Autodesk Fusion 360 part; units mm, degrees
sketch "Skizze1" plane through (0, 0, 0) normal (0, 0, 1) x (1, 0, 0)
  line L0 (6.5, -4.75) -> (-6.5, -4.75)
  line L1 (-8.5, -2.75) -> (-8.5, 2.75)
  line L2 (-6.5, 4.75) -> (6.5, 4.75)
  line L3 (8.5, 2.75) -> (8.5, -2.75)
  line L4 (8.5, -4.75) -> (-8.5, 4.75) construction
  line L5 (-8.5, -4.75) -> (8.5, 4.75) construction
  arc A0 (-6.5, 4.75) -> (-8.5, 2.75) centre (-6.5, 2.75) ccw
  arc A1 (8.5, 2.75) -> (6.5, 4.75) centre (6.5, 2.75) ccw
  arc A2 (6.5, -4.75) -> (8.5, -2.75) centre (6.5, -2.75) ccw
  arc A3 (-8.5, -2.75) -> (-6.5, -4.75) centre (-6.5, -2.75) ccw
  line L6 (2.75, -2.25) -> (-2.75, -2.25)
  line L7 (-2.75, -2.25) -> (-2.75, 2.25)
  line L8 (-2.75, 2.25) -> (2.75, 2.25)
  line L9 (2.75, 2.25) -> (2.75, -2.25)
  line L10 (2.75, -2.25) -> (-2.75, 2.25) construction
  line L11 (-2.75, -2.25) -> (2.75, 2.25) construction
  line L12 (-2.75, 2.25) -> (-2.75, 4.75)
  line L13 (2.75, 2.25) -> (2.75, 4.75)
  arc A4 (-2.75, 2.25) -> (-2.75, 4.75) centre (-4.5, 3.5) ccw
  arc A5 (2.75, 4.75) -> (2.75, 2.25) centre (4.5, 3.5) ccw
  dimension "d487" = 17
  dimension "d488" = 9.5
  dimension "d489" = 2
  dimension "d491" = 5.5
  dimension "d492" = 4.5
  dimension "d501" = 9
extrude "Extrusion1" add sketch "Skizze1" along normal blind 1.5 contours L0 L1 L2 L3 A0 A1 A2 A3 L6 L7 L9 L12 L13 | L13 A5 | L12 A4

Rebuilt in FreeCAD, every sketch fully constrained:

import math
import FreeCAD as App
import Part
import Sketcher
from FreeCAD import Vector
Q = App.Units.Quantity

doc = App.newDocument("Part")
body = doc.addObject("PartDesign::Body", "Body")

sketch1 = body.newObject("Sketcher::SketchObject", "Sketch")
sketch1.AttachmentSupport = (doc.getObject("XY_Plane"), [""])
sketch1.MapMode = "FlatFace"
sketch1.addGeometry([
    Part.LineSegment(Vector(-6.5, -4.8, 0), Vector(6.5, -4.8, 0)),
    Part.ArcOfCircle(Part.Circle(Vector(6.5, -2.8, 0), Vector(0, 0, 1), 2), math.radians(-90), math.radians(0)),
    Part.LineSegment(Vector(8.5, -2.8, 0), Vector(8.5, 2.8, 0)),
    Part.ArcOfCircle(Part.Circle(Vector(6.5, 2.8, 0), Vector(0, 0, 1), 2), math.radians(0), math.radians(90)),
    Part.LineSegment(Vector(6.5, 4.8, 0), Vector(2.8, 4.8, 0)),
    Part.ArcOfCircle(Part.Circle(Vector(4.5, 3.5, 0), Vector(0, 0, 1), 2.2), math.radians(144), math.radians(216)),
    Part.LineSegment(Vector(2.8, 2.2, 0), Vector(2.8, -2.2, 0)),
    Part.LineSegment(Vector(2.8, -2.2, 0), Vector(-2.8, -2.2, 0)),
    Part.LineSegment(Vector(-2.8, -2.2, 0), Vector(-2.8, 2.2, 0)),
    Part.ArcOfCircle(Part.Circle(Vector(-4.5, 3.5, 0), Vector(0, 0, 1), 2.2), math.radians(-36), math.radians(36)),
    Part.LineSegment(Vector(-2.8, 4.8, 0), Vector(-6.5, 4.8, 0)),
    Part.ArcOfCircle(Part.Circle(Vector(-6.5, 2.8, 0), Vector(0, 0, 1), 2), math.radians(90), math.radians(180)),
    Part.LineSegment(Vector(-8.5, 2.8, 0), Vector(-8.5, -2.8, 0)),
    Part.ArcOfCircle(Part.Circle(Vector(-6.5, -2.8, 0), Vector(0, 0, 1), 2), math.radians(180), math.radians(270)),
], False)
sketch1.addConstraint([
    Sketcher.Constraint("Tangent", 0, 2, 1, 1),
    Sketcher.Constraint("Tangent", 1, 2, 2, 1),
    Sketcher.Constraint("Tangent", 2, 2, 3, 1),
    Sketcher.Constraint("Tangent", 3, 2, 4, 1),
    Sketcher.Constraint("Coincident", 4, 2, 5, 1),
    Sketcher.Constraint("Coincident", 5, 2, 6, 1),
    Sketcher.Constraint("Coincident", 6, 2, 7, 1),
    Sketcher.Constraint("Coincident", 7, 2, 8, 1),
    Sketcher.Constraint("Coincident", 8, 2, 9, 1),
    Sketcher.Constraint("Coincident", 9, 2, 10, 1),
    Sketcher.Constraint("Tangent", 10, 2, 11, 1),
    Sketcher.Constraint("Tangent", 11, 2, 12, 1),
    Sketcher.Constraint("Tangent", 12, 2, 13, 1),
    Sketcher.Constraint("Tangent", 13, 2, 0, 1),
    Sketcher.Constraint("Horizontal", 0),
    Sketcher.Constraint("Vertical", 2),
    Sketcher.Constraint("Horizontal", 4),
    Sketcher.Constraint("Vertical", 6),
    Sketcher.Constraint("Horizontal", 7),
    Sketcher.Constraint("Vertical", 8),
    Sketcher.Constraint("Horizontal", 10),
    Sketcher.Constraint("Vertical", 12),
    Sketcher.Constraint("Equal", 1, 3),
    Sketcher.Constraint("Equal", 5, 9),
    Sketcher.Constraint("Equal", 3, 11),
    Sketcher.Constraint("Equal", 11, 13),
    Sketcher.Constraint("Symmetric", 1, 3, 11, 3, -1, 1),
    Sketcher.Constraint("Symmetric", 5, 2, 7, 2, -1, 1),
    Sketcher.Constraint("Symmetric", 5, 3, 9, 3, -2),
    Sketcher.Constraint("Horizontal", 3, 3, 11, 3),
    Sketcher.Constraint("Vertical", 4, 2, 5, 2),
    Sketcher.Constraint("Equal", 7, 2),
    Sketcher.Constraint("Radius", 1, Q("2 mm")),
    Sketcher.Constraint("DistanceX", 7, 2, 7, 1, Q("5.5 mm")),
    Sketcher.Constraint("DistanceY", 6, 2, 6, 1, Q("4.5 mm")),
    Sketcher.Constraint("DistanceX", 5, 3, 3, 3, Q("2 mm")),
    Sketcher.Constraint("DistanceX", 9, 3, 5, 3, Q("9 mm")),
])
pad1 = body.newObject("PartDesign::Pad", "Pad")
pad1.Profile = sketch1
pad1.Length = 1.5

doc.recompute()
